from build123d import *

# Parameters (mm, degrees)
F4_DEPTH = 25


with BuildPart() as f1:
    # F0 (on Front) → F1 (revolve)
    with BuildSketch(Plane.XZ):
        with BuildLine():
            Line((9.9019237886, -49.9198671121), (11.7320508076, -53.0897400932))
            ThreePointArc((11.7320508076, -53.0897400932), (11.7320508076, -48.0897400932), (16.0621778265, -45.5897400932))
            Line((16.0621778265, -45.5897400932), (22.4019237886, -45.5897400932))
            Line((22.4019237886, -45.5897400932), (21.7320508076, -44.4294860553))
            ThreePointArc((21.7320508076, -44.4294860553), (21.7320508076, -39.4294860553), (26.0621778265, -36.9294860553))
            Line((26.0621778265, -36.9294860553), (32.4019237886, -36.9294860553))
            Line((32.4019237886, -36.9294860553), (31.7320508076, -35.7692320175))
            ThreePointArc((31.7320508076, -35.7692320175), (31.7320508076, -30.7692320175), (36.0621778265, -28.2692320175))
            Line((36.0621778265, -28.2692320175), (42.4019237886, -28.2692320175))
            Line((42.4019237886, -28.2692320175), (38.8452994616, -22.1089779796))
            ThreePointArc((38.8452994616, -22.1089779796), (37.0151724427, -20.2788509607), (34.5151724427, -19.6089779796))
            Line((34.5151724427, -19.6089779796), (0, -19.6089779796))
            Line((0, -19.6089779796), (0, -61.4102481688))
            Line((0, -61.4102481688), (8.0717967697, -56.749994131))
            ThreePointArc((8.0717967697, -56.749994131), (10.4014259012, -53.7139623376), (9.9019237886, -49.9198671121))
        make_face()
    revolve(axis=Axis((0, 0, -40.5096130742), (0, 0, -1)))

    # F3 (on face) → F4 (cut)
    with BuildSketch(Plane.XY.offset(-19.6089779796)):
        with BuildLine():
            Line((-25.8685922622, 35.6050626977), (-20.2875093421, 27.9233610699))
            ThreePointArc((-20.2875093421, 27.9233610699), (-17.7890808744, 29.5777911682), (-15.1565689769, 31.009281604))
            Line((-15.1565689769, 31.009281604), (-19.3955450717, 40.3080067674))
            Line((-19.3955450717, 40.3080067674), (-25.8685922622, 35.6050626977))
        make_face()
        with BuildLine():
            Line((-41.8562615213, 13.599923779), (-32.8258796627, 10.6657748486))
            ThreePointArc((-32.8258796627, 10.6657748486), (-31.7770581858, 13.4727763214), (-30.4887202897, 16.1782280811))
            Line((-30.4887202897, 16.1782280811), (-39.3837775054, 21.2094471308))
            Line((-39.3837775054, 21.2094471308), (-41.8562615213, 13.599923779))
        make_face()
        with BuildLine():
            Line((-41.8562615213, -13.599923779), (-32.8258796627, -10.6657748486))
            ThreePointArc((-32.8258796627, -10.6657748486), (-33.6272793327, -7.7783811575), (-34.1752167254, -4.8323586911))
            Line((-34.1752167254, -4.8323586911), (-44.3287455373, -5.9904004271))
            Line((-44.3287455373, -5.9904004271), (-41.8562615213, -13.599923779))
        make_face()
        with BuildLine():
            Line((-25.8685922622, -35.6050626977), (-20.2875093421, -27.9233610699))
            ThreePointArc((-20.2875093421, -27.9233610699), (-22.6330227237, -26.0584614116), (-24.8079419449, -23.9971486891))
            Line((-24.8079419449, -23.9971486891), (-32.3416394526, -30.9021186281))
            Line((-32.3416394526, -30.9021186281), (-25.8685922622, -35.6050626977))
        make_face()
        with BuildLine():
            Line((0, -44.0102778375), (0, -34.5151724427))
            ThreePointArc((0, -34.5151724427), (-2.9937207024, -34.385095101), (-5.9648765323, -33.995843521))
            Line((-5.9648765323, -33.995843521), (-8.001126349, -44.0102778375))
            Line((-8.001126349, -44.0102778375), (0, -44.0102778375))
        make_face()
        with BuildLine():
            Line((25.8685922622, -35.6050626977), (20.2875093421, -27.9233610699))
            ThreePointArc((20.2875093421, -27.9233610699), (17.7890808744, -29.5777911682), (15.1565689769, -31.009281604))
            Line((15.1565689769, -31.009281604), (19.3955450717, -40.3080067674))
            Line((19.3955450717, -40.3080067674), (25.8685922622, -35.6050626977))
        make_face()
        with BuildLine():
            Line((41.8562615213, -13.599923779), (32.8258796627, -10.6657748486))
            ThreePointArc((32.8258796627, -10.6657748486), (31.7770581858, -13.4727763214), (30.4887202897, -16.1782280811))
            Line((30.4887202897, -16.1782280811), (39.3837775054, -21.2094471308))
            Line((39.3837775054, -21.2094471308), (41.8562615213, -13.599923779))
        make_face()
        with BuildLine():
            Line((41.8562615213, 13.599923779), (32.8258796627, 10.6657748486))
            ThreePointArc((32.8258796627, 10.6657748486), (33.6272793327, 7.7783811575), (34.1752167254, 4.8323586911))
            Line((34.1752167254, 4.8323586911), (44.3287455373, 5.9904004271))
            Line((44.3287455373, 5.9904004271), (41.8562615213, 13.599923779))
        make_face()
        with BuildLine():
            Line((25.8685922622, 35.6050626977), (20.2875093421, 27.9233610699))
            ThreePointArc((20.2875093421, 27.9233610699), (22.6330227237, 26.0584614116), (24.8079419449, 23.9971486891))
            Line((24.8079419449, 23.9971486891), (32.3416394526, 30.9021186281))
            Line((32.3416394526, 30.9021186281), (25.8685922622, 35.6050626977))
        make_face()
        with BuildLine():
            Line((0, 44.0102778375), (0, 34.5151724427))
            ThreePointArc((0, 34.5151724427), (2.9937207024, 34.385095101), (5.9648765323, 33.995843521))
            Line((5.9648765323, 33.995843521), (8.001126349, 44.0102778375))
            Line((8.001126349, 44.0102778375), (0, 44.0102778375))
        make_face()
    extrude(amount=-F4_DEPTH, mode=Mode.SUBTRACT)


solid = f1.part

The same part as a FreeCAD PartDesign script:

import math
import FreeCAD as App
import Part
import Sketcher

V = App.Vector
Q = App.Units.Quantity

doc = App.newDocument("Part")
body = doc.addObject("PartDesign::Body", "Body")

sketch1 = body.newObject("Sketcher::SketchObject", "Sketch")
sketch1.AttachmentSupport = (doc.getObject("XZ_Plane"), [""])
sketch1.MapMode = "FlatFace"
sketch1.addGeometry(Part.LineSegment(V(9.9, -49.9, 0), V(11.7, -53.1, 0)), False)
sketch1.addGeometry(Part.ArcOfCircle(Part.Circle(V(16.1, -50.6, 0), V(0, 0, 1), 5), math.radians(90), math.radians(210)), False)
sketch1.addGeometry(Part.LineSegment(V(16.1, -45.6, 0), V(22.4, -45.6, 0)), False)
sketch1.addGeometry(Part.LineSegment(V(22.4, -45.6, 0), V(21.7, -44.4, 0)), False)
sketch1.addGeometry(Part.ArcOfCircle(Part.Circle(V(26.1, -41.9, 0), V(0, 0, 1), 5), math.radians(90), math.radians(210)), False)
sketch1.addGeometry(Part.LineSegment(V(26.1, -36.9, 0), V(32.4, -36.9, 0)), False)
sketch1.addGeometry(Part.LineSegment(V(32.4, -36.9, 0), V(31.7, -35.8, 0)), False)
sketch1.addGeometry(Part.ArcOfCircle(Part.Circle(V(36.1, -33.3, 0), V(0, 0, 1), 5), math.radians(90), math.radians(210)), False)
sketch1.addGeometry(Part.LineSegment(V(36.1, -28.3, 0), V(42.4, -28.3, 0)), False)
sketch1.addGeometry(Part.LineSegment(V(42.4, -28.3, 0), V(38.8, -22.1, 0)), False)
sketch1.addGeometry(Part.ArcOfCircle(Part.Circle(V(34.5, -24.6, 0), V(0, 0, 1), 5), math.radians(30), math.radians(90)), False)
sketch1.addGeometry(Part.LineSegment(V(34.5, -19.6, 0), V(0, -19.6, 0)), False)
sketch1.addGeometry(Part.LineSegment(V(0, -19.6, 0), V(0, -61.4, 0)), False)
sketch1.addGeometry(Part.LineSegment(V(0, -61.4, 0), V(8.1, -56.7, 0)), False)
sketch1.addGeometry(Part.ArcOfCircle(Part.Circle(V(5.6, -52.4, 0), V(0, 0, 1), 5), math.radians(-60), math.radians(30)), False)
sketch1.addConstraint(Sketcher.Constraint("Tangent", 0, 2, 1, 2))
sketch1.addConstraint(Sketcher.Constraint("Tangent", 1, 1, 2, 1))
sketch1.addConstraint(Sketcher.Constraint("Coincident", 2, 2, 3, 1))
sketch1.addConstraint(Sketcher.Constraint("Tangent", 3, 2, 4, 2))
sketch1.addConstraint(Sketcher.Constraint("Tangent", 4, 1, 5, 1))
sketch1.addConstraint(Sketcher.Constraint("Coincident", 5, 2, 6, 1))
sketch1.addConstraint(Sketcher.Constraint("Tangent", 6, 2, 7, 2))
sketch1.addConstraint(Sketcher.Constraint("Tangent", 7, 1, 8, 1))
sketch1.addConstraint(Sketcher.Constraint("Coincident", 8, 2, 9, 1))
sketch1.addConstraint(Sketcher.Constraint("Tangent", 9, 2, 10, 1))
sketch1.addConstraint(Sketcher.Constraint("Tangent", 10, 2, 11, 1))
sketch1.addConstraint(Sketcher.Constraint("Coincident", 11, 2, 12, 1))
sketch1.addConstraint(Sketcher.Constraint("Coincident", 12, 2, 13, 1))
sketch1.addConstraint(Sketcher.Constraint("Tangent", 13, 2, 14, 1))
sketch1.addConstraint(Sketcher.Constraint("Tangent", 14, 2, 0, 1))
sketch1.addConstraint(Sketcher.Constraint("Horizontal", 2))
sketch1.addConstraint(Sketcher.Constraint("Horizontal", 5))
sketch1.addConstraint(Sketcher.Constraint("Horizontal", 8))
sketch1.addConstraint(Sketcher.Constraint("Horizontal", 11))
sketch1.addConstraint(Sketcher.Constraint("Vertical", 12))
sketch1.addConstraint(Sketcher.Constraint("Equal", 1, 4))
sketch1.addConstraint(Sketcher.Constraint("Equal", 4, 7))
sketch1.addConstraint(Sketcher.Constraint("Equal", 7, 10))
sketch1.addConstraint(Sketcher.Constraint("Equal", 10, 14))
sketch1.addConstraint(Sketcher.Constraint("PointOnObject", 11, 2, -2))
sketch1.addConstraint(Sketcher.Constraint("Parallel", 0, 3))
sketch1.addConstraint(Sketcher.Constraint("Parallel", 3, 6))
sketch1.addConstraint(Sketcher.Constraint("Parallel", 6, 9))
sketch1.addConstraint(Sketcher.Constraint("Perpendicular", 9, 13))
sketch1.addConstraint(Sketcher.Constraint("Equal", 2, 5))
sketch1.addConstraint(Sketcher.Constraint("Equal", 5, 8))
sketch1.addConstraint(Sketcher.Constraint("Equal", 3, 6))
sketch1.addConstraint(Sketcher.Constraint("Radius", 1, Q("5 mm")))
sketch1.addConstraint(Sketcher.Constraint("Angle", 0, Q("-60 deg")))
sketch1.addConstraint(Sketcher.Constraint("DistanceX", 1, 3, 4, 3, Q("10 mm")))
sketch1.addConstraint(Sketcher.Constraint("DistanceY", 12, 2, 12, 1, Q("41.80127 mm")))
sketch1.addConstraint(Sketcher.Constraint("DistanceX", -1, 1, 9, 2, Q("38.845299 mm")))
sketch1.addConstraint(Sketcher.Constraint("Distance", 9, Q("7.113249 mm")))
sketch1.addConstraint(Sketcher.Constraint("Distance", 13, Q("9.320508 mm")))
sketch1.addConstraint(Sketcher.Constraint("DistanceY", 1, 3, -1, 1, Q("50.58974 mm")))
revolution = body.newObject("PartDesign::Revolution", "Revolution")
revolution.Profile = sketch1
revolution.ReferenceAxis = (sketch1, ["V_Axis"])
revolution.Angle = 360

sketch2 = body.newObject("Sketcher::SketchObject", "Sketch001")
sketch2.AttachmentSupport = (doc.getObject("XY_Plane"), [""])
sketch2.MapMode = "FlatFace"
sketch2.AttachmentOffset = App.Placement(V(0, 0, -19.608978), App.Rotation())
sketch2.addGeometry(Part.LineSegment(V(-25.868592, 35.605063, 0), V(-20.287509, 27.923361, 0)), False)
sketch2.addGeometry(Part.ArcOfCircle(Part.Circle(V(0, 0, 0), V(0, 0, 1), 34.515172), math.radians(116.048239), math.radians(126)), False)
sketch2.addGeometry(Part.LineSegment(V(-15.156569, 31.009282, 0), V(-19.395545, 40.308007, 0)), False)
sketch2.addGeometry(Part.LineSegment(V(-19.395545, 40.308007, 0), V(-25.868592, 35.605063, 0)), False)
sketch2.addGeometry(Part.LineSegment(V(-41.856262, 13.599924, 0), V(-32.82588, 10.665775, 0)), False)
sketch2.addGeometry(Part.ArcOfCircle(Part.Circle(V(0, 0, 0), V(0, 0, 1), 34.515172), math.radians(152.048239), math.radians(162)), False)
sketch2.addGeometry(Part.LineSegment(V(-30.48872, 16.178228, 0), V(-39.383778, 21.209447, 0)), False)
sketch2.addGeometry(Part.LineSegment(V(-39.383778, 21.209447, 0), V(-41.856262, 13.599924, 0)), False)
sketch2.addGeometry(Part.LineSegment(V(-41.856262, -13.599924, 0), V(-32.82588, -10.665775, 0)), False)
sketch2.addGeometry(Part.ArcOfCircle(Part.Circle(V(0, 0, 0), V(0, 0, 1), 34.515172), math.radians(-171.951761), math.radians(-162)), False)
sketch2.addGeometry(Part.LineSegment(V(-34.175217, -4.832359, 0), V(-44.328746, -5.9904, 0)), False)
sketch2.addGeometry(Part.LineSegment(V(-44.328746, -5.9904, 0), V(-41.856262, -13.599924, 0)), False)
sketch2.addGeometry(Part.LineSegment(V(-25.868592, -35.605063, 0), V(-20.287509, -27.923361, 0)), False)
sketch2.addGeometry(Part.ArcOfCircle(Part.Circle(V(0, 0, 0), V(0, 0, 1), 34.515172), math.radians(-135.951761), math.radians(-126)), False)
sketch2.addGeometry(Part.LineSegment(V(-24.807942, -23.997149, 0), V(-32.341639, -30.902119, 0)), False)
sketch2.addGeometry(Part.LineSegment(V(-32.341639, -30.902119, 0), V(-25.868592, -35.605063, 0)), False)
sketch2.addGeometry(Part.LineSegment(V(0, -44.010278, 0), V(0, -34.515172, 0)), False)
sketch2.addGeometry(Part.ArcOfCircle(Part.Circle(V(0, 0, 0), V(0, 0, 1), 34.515172), math.radians(-99.951761), math.radians(-90)), False)
sketch2.addGeometry(Part.LineSegment(V(-5.964877, -33.995844, 0), V(-8.001126, -44.010278, 0)), False)
sketch2.addGeometry(Part.LineSegment(V(-8.001126, -44.010278, 0), V(0, -44.010278, 0)), False)
sketch2.addGeometry(Part.LineSegment(V(25.868592, -35.605063, 0), V(20.287509, -27.923361, 0)), False)
sketch2.addGeometry(Part.ArcOfCircle(Part.Circle(V(0, 0, 0), V(0, 0, 1), 34.515172), math.radians(-63.951761), math.radians(-54)), False)
sketch2.addGeometry(Part.LineSegment(V(15.156569, -31.009282, 0), V(19.395545, -40.308007, 0)), False)
sketch2.addGeometry(Part.LineSegment(V(19.395545, -40.308007, 0), V(25.868592, -35.605063, 0)), False)
sketch2.addGeometry(Part.LineSegment(V(41.856262, -13.599924, 0), V(32.82588, -10.665775, 0)), False)
sketch2.addGeometry(Part.ArcOfCircle(Part.Circle(V(0, 0, 0), V(0, 0, 1), 34.515172), math.radians(-27.951761), math.radians(-18)), False)
sketch2.addGeometry(Part.LineSegment(V(30.48872, -16.178228, 0), V(39.383778, -21.209447, 0)), False)
sketch2.addGeometry(Part.LineSegment(V(39.383778, -21.209447, 0), V(41.856262, -13.599924, 0)), False)
sketch2.addGeometry(Part.LineSegment(V(41.856262, 13.599924, 0), V(32.82588, 10.665775, 0)), False)
sketch2.addGeometry(Part.ArcOfCircle(Part.Circle(V(0, 0, 0), V(0, 0, 1), 34.515172), math.radians(8.048239), math.radians(18)), False)
sketch2.addGeometry(Part.LineSegment(V(34.175217, 4.832359, 0), V(44.328746, 5.9904, 0)), False)
sketch2.addGeometry(Part.LineSegment(V(44.328746, 5.9904, 0), V(41.856262, 13.599924, 0)), False)
sketch2.addGeometry(Part.LineSegment(V(25.868592, 35.605063, 0), V(20.287509, 27.923361, 0)), False)
sketch2.addGeometry(Part.ArcOfCircle(Part.Circle(V(0, 0, 0), V(0, 0, 1), 34.515172), math.radians(44.048239), math.radians(54)), False)
sketch2.addGeometry(Part.LineSegment(V(24.807942, 23.997149, 0), V(32.341639, 30.902119, 0)), False)
sketch2.addGeometry(Part.LineSegment(V(32.341639, 30.902119, 0), V(25.868592, 35.605063, 0)), False)
sketch2.addGeometry(Part.LineSegment(V(0, 44.010278, 0), V(0, 34.515172, 0)), False)
sketch2.addGeometry(Part.ArcOfCircle(Part.Circle(V(0, 0, 0), V(0, 0, 1), 34.515172), math.radians(80.048239), math.radians(90)), False)
sketch2.addGeometry(Part.LineSegment(V(5.964877, 33.995844, 0), V(8.001126, 44.010278, 0)), False)
sketch2.addGeometry(Part.LineSegment(V(8.001126, 44.010278, 0), V(0, 44.010278, 0)), False)
sketch2.addConstraint(Sketcher.Constraint("Coincident", 0, 2, 1, 2))
sketch2.addConstraint(Sketcher.Constraint("Coincident", 1, 1, 2, 1))
sketch2.addConstraint(Sketcher.Constraint("Coincident", 2, 2, 3, 1))
sketch2.addConstraint(Sketcher.Constraint("Coincident", 3, 2, 0, 1))
sketch2.addConstraint(Sketcher.Constraint("Coincident", 4, 2, 5, 2))
sketch2.addConstraint(Sketcher.Constraint("Coincident", 5, 1, 6, 1))
sketch2.addConstraint(Sketcher.Constraint("Coincident", 6, 2, 7, 1))
sketch2.addConstraint(Sketcher.Constraint("Coincident", 7, 2, 4, 1))
sketch2.addConstraint(Sketcher.Constraint("Coincident", 8, 2, 9, 2))
sketch2.addConstraint(Sketcher.Constraint("Coincident", 9, 1, 10, 1))
sketch2.addConstraint(Sketcher.Constraint("Coincident", 10, 2, 11, 1))
sketch2.addConstraint(Sketcher.Constraint("Coincident", 11, 2, 8, 1))
sketch2.addConstraint(Sketcher.Constraint("Coincident", 12, 2, 13, 2))
sketch2.addConstraint(Sketcher.Constraint("Coincident", 13, 1, 14, 1))
sketch2.addConstraint(Sketcher.Constraint("Coincident", 14, 2, 15, 1))
sketch2.addConstraint(Sketcher.Constraint("Coincident", 15, 2, 12, 1))
sketch2.addConstraint(Sketcher.Constraint("Coincident", 16, 2, 17, 2))
sketch2.addConstraint(Sketcher.Constraint("Coincident", 17, 1, 18, 1))
sketch2.addConstraint(Sketcher.Constraint("Coincident", 18, 2, 19, 1))
sketch2.addConstraint(Sketcher.Constraint("Coincident", 19, 2, 16, 1))
sketch2.addConstraint(Sketcher.Constraint("Coincident", 20, 2, 21, 2))
sketch2.addConstraint(Sketcher.Constraint("Coincident", 21, 1, 22, 1))
sketch2.addConstraint(Sketcher.Constraint("Coincident", 22, 2, 23, 1))
sketch2.addConstraint(Sketcher.Constraint("Coincident", 23, 2, 20, 1))
sketch2.addConstraint(Sketcher.Constraint("Coincident", 24, 2, 25, 2))
sketch2.addConstraint(Sketcher.Constraint("Coincident", 25, 1, 26, 1))
sketch2.addConstraint(Sketcher.Constraint("Coincident", 26, 2, 27, 1))
sketch2.addConstraint(Sketcher.Constraint("Coincident", 27, 2, 24, 1))
sketch2.addConstraint(Sketcher.Constraint("Coincident", 28, 2, 29, 2))
sketch2.addConstraint(Sketcher.Constraint("Coincident", 29, 1, 30, 1))
sketch2.addConstraint(Sketcher.Constraint("Coincident", 30, 2, 31, 1))
sketch2.addConstraint(Sketcher.Constraint("Coincident", 31, 2, 28, 1))
sketch2.addConstraint(Sketcher.Constraint("Coincident", 32, 2, 33, 2))
sketch2.addConstraint(Sketcher.Constraint("Coincident", 33, 1, 34, 1))
sketch2.addConstraint(Sketcher.Constraint("Coincident", 34, 2, 35, 1))
sketch2.addConstraint(Sketcher.Constraint("Coincident", 35, 2, 32, 1))
sketch2.addConstraint(Sketcher.Constraint("Coincident", 36, 2, 37, 2))
sketch2.addConstraint(Sketcher.Constraint("Coincident", 37, 1, 38, 1))
sketch2.addConstraint(Sketcher.Constraint("Coincident", 38, 2, 39, 1))
sketch2.addConstraint(Sketcher.Constraint("Coincident", 39, 2, 36, 1))
sketch2.addConstraint(Sketcher.Constraint("Vertical", 16))
sketch2.addConstraint(Sketcher.Constraint("Horizontal", 19))
sketch2.addConstraint(Sketcher.Constraint("Vertical", 36))
sketch2.addConstraint(Sketcher.Constraint("Horizontal", 39))
sketch2.addConstraint(Sketcher.Constraint("Coincident", 1, 3, -1, 1))
sketch2.addConstraint(Sketcher.Constraint("Coincident", 5, 3, -1, 1))
sketch2.addConstraint(Sketcher.Constraint("Coincident", 9, 3, -1, 1))
sketch2.addConstraint(Sketcher.Constraint("Coincident", 13, 3, -1, 1))
sketch2.addConstraint(Sketcher.Constraint("Coincident", 17, 3, -1, 1))
sketch2.addConstraint(Sketcher.Constraint("Coincident", 21, 3, -1, 1))
sketch2.addConstraint(Sketcher.Constraint("Coincident", 25, 3, -1, 1))
sketch2.addConstraint(Sketcher.Constraint("Coincident", 29, 3, -1, 1))
sketch2.addConstraint(Sketcher.Constraint("Coincident", 33, 3, -1, 1))
sketch2.addConstraint(Sketcher.Constraint("Coincident", 37, 3, -1, 1))
sketch2.addConstraint(Sketcher.Constraint("PointOnObject", 16, 2, -2))
sketch2.addConstraint(Sketcher.Constraint("PointOnObject", 36, 2, -2))
sketch2.addConstraint(Sketcher.Constraint("Radius", 1, Q("34.515172 mm")))
sketch2.addConstraint(Sketcher.Constraint("Radius", 5, Q("34.515172 mm")))
sketch2.addConstraint(Sketcher.Constraint("Radius", 9, Q("34.515172 mm")))
sketch2.addConstraint(Sketcher.Constraint("Radius", 13, Q("34.515172 mm")))
sketch2.addConstraint(Sketcher.Constraint("Radius", 17, Q("34.515172 mm")))
sketch2.addConstraint(Sketcher.Constraint("Radius", 21, Q("34.515172 mm")))
sketch2.addConstraint(Sketcher.Constraint("Radius", 25, Q("34.515172 mm")))
sketch2.addConstraint(Sketcher.Constraint("Radius", 29, Q("34.515172 mm")))
sketch2.addConstraint(Sketcher.Constraint("Radius", 33, Q("34.515172 mm")))
sketch2.addConstraint(Sketcher.Constraint("Radius", 37, Q("34.515172 mm")))
sketch2.addConstraint(Sketcher.Constraint("DistanceY", 10, 2, -1, 1, Q("5.9904 mm")))
sketch2.addConstraint(Sketcher.Constraint("DistanceY", -1, 1, 30, 2, Q("5.9904 mm")))
sketch2.addConstraint(Sketcher.Constraint("DistanceY", 0, 2, 3, 2, Q("7.681702 mm")))
sketch2.addConstraint(Sketcher.Constraint("DistanceY", 8, 2, 7, 2, Q("24.265699 mm")))
sketch2.addConstraint(Sketcher.Constraint("DistanceY", 11, 2, 4, 2, Q("24.265699 mm")))
sketch2.addConstraint(Sketcher.Constraint("DistanceY", 15, 2, 12, 2, Q("7.681702 mm")))
sketch2.addConstraint(Sketcher.Constraint("DistanceY", 23, 2, 20, 2, Q("7.681702 mm")))
sketch2.addConstraint(Sketcher.Constraint("DistanceY", 27, 2, 28, 2, Q("24.265699 mm")))
sketch2.addConstraint(Sketcher.Constraint("DistanceY", 24, 2, 31, 2, Q("24.265699 mm")))
sketch2.addConstraint(Sketcher.Constraint("DistanceY", 32, 2, 35, 2, Q("7.681702 mm")))
sketch2.addConstraint(Sketcher.Constraint("DistanceX", 19, 1, 19, 2, Q("8.001126 mm")))
sketch2.addConstraint(Sketcher.Constraint("DistanceX", 39, 2, 39, 1, Q("8.001126 mm")))
sketch2.addConstraint(Sketcher.Constraint("DistanceY", 16, 1, 16, 2, Q("9.495105 mm")))
sketch2.addConstraint(Sketcher.Constraint("DistanceY", 36, 2, 36, 1, Q("9.495105 mm")))
sketch2.addConstraint(Sketcher.Constraint("DistanceX", 0, 2, -1, 1, Q("20.287509 mm")))
sketch2.addConstraint(Sketcher.Constraint("DistanceX", 1, 1, -1, 1, Q("15.156569 mm")))
sketch2.addConstraint(Sketcher.Constraint("DistanceX", 4, 2, -1, 1, Q("32.82588 mm")))
sketch2.addConstraint(Sketcher.Constraint("DistanceX", 5, 1, -1, 1, Q("30.48872 mm")))
sketch2.addConstraint(Sketcher.Constraint("DistanceX", 7, 2, -1, 1, Q("41.856262 mm")))
sketch2.addConstraint(Sketcher.Constraint("DistanceX", 8, 2, -1, 1, Q("32.82588 mm")))
sketch2.addConstraint(Sketcher.Constraint("DistanceY", 9, 1, -1, 1, Q("4.832359 mm")))
sketch2.addConstraint(Sketcher.Constraint("DistanceX", 11, 2, -1, 1, Q("41.856262 mm")))
sketch2.addConstraint(Sketcher.Constraint("DistanceX", 12, 2, -1, 1, Q("20.287509 mm")))
sketch2.addConstraint(Sketcher.Constraint("DistanceX", 13, 1, -1, 1, Q("24.807942 mm")))
sketch2.addConstraint(Sketcher.Constraint("DistanceX", 14, 2, -1, 1, Q("32.341639 mm")))
sketch2.addConstraint(Sketcher.Constraint("DistanceY", 14, 2, -1, 1, Q("30.902119 mm")))
sketch2.addConstraint(Sketcher.Constraint("DistanceX", -1, 1, 20, 2, Q("20.287509 mm")))
sketch2.addConstraint(Sketcher.Constraint("DistanceX", -1, 1, 21, 1, Q("15.156569 mm")))
sketch2.addConstraint(Sketcher.Constraint("DistanceX", -1, 1, 24, 2, Q("32.82588 mm")))
sketch2.addConstraint(Sketcher.Constraint("DistanceX", -1, 1, 25, 1, Q("30.48872 mm")))
sketch2.addConstraint(Sketcher.Constraint("DistanceX", -1, 1, 27, 2, Q("41.856262 mm")))
sketch2.addConstraint(Sketcher.Constraint("DistanceX", -1, 1, 28, 2, Q("32.82588 mm")))
sketch2.addConstraint(Sketcher.Constraint("DistanceY", -1, 1, 29, 1, Q("4.832359 mm")))
sketch2.addConstraint(Sketcher.Constraint("DistanceX", -1, 1, 31, 2, Q("41.856262 mm")))
sketch2.addConstraint(Sketcher.Constraint("DistanceX", -1, 1, 32, 2, Q("20.287509 mm")))
sketch2.addConstraint(Sketcher.Constraint("DistanceX", -1, 1, 33, 1, Q("24.807942 mm")))
sketch2.addConstraint(Sketcher.Constraint("DistanceX", -1, 1, 34, 2, Q("32.341639 mm")))
sketch2.addConstraint(Sketcher.Constraint("DistanceY", -1, 1, 34, 2, Q("30.902119 mm")))
sketch2.addConstraint(Sketcher.Constraint("DistanceY", 4, 2, 2, 2, Q("29.642232 mm")))
sketch2.addConstraint(Sketcher.Constraint("DistanceX", 5, 1, 3, 2, Q("4.620128 mm")))
sketch2.addConstraint(Sketcher.Constraint("DistanceY", 5, 1, 6, 2, Q("5.031219 mm")))
sketch2.addConstraint(Sketcher.Constraint("DistanceX", 6, 2, 0, 2, Q("19.096268 mm")))
sketch2.addConstraint(Sketcher.Constraint("DistanceX", 10, 2, 9, 1, Q("10.153529 mm")))
sketch2.addConstraint(Sketcher.Constraint("DistanceX", 15, 2, 13, 1, Q("1.06065 mm")))
sketch2.addConstraint(Sketcher.Constraint("DistanceY", 16, 2, 17, 1, Q("0.519329 mm")))
sketch2.addConstraint(Sketcher.Constraint("DistanceY", 19, 2, 22, 2, Q("3.702271 mm")))
sketch2.addConstraint(Sketcher.Constraint("DistanceX", 17, 1, 22, 2, Q("25.360422 mm")))
sketch2.addConstraint(Sketcher.Constraint("DistanceX", 23, 2, 25, 1, Q("4.620128 mm")))
sketch2.addConstraint(Sketcher.Constraint("DistanceY", 26, 2, 25, 1, Q("5.031219 mm")))
sketch2.addConstraint(Sketcher.Constraint("DistanceX", 20, 2, 26, 2, Q("19.096268 mm")))
sketch2.addConstraint(Sketcher.Constraint("DistanceX", 29, 1, 30, 2, Q("10.153529 mm")))
sketch2.addConstraint(Sketcher.Constraint("DistanceX", 33, 1, 35, 2, Q("1.06065 mm")))
sketch2.addConstraint(Sketcher.Constraint("DistanceY", 37, 1, 36, 2, Q("0.519329 mm")))
sketch2.addConstraint(Sketcher.Constraint("Distance", 2, Q("10.219355 mm")))
pocket1 = body.newObject("PartDesign::Pocket", "Pocket")
pocket1.Profile = sketch2
pocket1.Length = 25

doc.recompute()
